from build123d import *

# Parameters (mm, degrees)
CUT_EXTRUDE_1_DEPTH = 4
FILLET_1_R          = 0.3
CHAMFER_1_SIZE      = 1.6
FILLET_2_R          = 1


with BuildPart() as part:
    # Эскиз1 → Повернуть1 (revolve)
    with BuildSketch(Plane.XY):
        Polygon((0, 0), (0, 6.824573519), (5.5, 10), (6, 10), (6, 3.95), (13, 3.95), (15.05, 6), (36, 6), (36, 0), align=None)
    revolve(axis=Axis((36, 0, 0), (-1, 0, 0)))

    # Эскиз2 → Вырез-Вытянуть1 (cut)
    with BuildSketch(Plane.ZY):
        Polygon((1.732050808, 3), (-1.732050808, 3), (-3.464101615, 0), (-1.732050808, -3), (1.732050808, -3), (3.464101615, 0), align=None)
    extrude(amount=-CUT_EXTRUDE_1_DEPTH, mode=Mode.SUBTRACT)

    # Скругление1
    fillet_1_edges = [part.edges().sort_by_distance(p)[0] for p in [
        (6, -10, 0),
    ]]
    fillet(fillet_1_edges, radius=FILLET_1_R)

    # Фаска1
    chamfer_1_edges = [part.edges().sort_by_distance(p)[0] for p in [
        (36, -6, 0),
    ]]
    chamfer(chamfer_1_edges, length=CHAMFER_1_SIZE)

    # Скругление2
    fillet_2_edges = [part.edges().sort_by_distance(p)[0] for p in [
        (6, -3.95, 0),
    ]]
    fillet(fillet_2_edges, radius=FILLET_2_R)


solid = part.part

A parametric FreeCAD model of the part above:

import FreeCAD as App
import Part
import Sketcher
Q = App.Units.Quantity


def edges_at(feature, points):
    """Names of the edges that pass closest to the given points."""
    edges = feature.Shape.Edges
    near = lambda p: min(range(len(edges)), key=lambda i: edges[i].distToShape(Part.Vertex(*p))[0])
    return sorted({f"Edge{near(p) + 1}" for p in points})

doc = App.newDocument("Part")
body = doc.addObject("PartDesign::Body", "Body")

# Sketch on XY plane
sketch1 = doc.addObject("Sketcher::SketchObject", "Sketch")
body.addObject(sketch1)
sketch1.AttachmentSupport = (doc.XY_Plane, [""])
sketch1.MapMode = "FlatFace"
sketch1.addGeometry(Part.LineSegment(App.Vector(0, 6.8, 0), App.Vector(0, 0, 0)), False)
sketch1.addGeometry(Part.LineSegment(App.Vector(0, 0, 0), App.Vector(36, 0, 0)), False)
sketch1.addGeometry(Part.LineSegment(App.Vector(36, 0, 0), App.Vector(36, 6, 0)), False)
sketch1.addGeometry(Part.LineSegment(App.Vector(36, 6, 0), App.Vector(15.1, 6, 0)), False)
sketch1.addGeometry(Part.LineSegment(App.Vector(15.1, 6, 0), App.Vector(13, 4, 0)), False)
sketch1.addGeometry(Part.LineSegment(App.Vector(13, 4, 0), App.Vector(6, 4, 0)), False)
sketch1.addGeometry(Part.LineSegment(App.Vector(6, 4, 0), App.Vector(6, 10, 0)), False)
sketch1.addGeometry(Part.LineSegment(App.Vector(6, 10, 0), App.Vector(5.5, 10, 0)), False)
sketch1.addGeometry(Part.LineSegment(App.Vector(5.5, 10, 0), App.Vector(0, 6.8, 0)), False)
sketch1.addConstraint(Sketcher.Constraint("Coincident", 0, 2, 1, 1))
sketch1.addConstraint(Sketcher.Constraint("Coincident", 1, 2, 2, 1))
sketch1.addConstraint(Sketcher.Constraint("Coincident", 2, 2, 3, 1))
sketch1.addConstraint(Sketcher.Constraint("Coincident", 3, 2, 4, 1))
sketch1.addConstraint(Sketcher.Constraint("Coincident", 4, 2, 5, 1))
sketch1.addConstraint(Sketcher.Constraint("Coincident", 5, 2, 6, 1))
sketch1.addConstraint(Sketcher.Constraint("Coincident", 6, 2, 7, 1))
sketch1.addConstraint(Sketcher.Constraint("Coincident", 7, 2, 8, 1))
sketch1.addConstraint(Sketcher.Constraint("Coincident", 8, 2, 0, 1))
sketch1.addConstraint(Sketcher.Constraint("Vertical", 0))
sketch1.addConstraint(Sketcher.Constraint("Horizontal", 1))
sketch1.addConstraint(Sketcher.Constraint("Vertical", 2))
sketch1.addConstraint(Sketcher.Constraint("Horizontal", 3))
sketch1.addConstraint(Sketcher.Constraint("Horizontal", 5))
sketch1.addConstraint(Sketcher.Constraint("Vertical", 6))
sketch1.addConstraint(Sketcher.Constraint("Horizontal", 7))
sketch1.addConstraint(Sketcher.Constraint("Coincident", 0, 2, -1, 1))
sketch1.addConstraint(Sketcher.Constraint("DistanceX", 1, 1, 1, 2, Q("36 mm")))
sketch1.addConstraint(Sketcher.Constraint("DistanceX", 5, 2, 5, 1, Q("7 mm")))
sketch1.addConstraint(Sketcher.Constraint("DistanceY", 2, 1, 2, 2, Q("6 mm")))
sketch1.addConstraint(Sketcher.Constraint("Angle", 4, Q("-135 deg")))
sketch1.addConstraint(Sketcher.Constraint("Angle", 8, Q("-150 deg")))
sketch1.addConstraint(Sketcher.Constraint("DistanceX", 7, 2, 7, 1, Q("0.5 mm")))
sketch1.addConstraint(Sketcher.Constraint("DistanceX", -1, 1, 4, 2, Q("13 mm")))
sketch1.addConstraint(Sketcher.Constraint("DistanceY", -1, 1, 6, 2, Q("10 mm")))
sketch1.addConstraint(Sketcher.Constraint("DistanceX", 3, 2, 3, 1, Q("20.95 mm")))
revolution = doc.addObject("PartDesign::Revolution", "Revolution")
body.addObject(revolution)
revolution.Profile = sketch1
revolution.ReferenceAxis = (sketch1, ["H_Axis"])
revolution.Angle = 360

# Sketch on YZ plane
sketch2 = doc.addObject("Sketcher::SketchObject", "Sketch001")
body.addObject(sketch2)
sketch2.AttachmentSupport = (doc.YZ_Plane, [""])
sketch2.MapMode = "FlatFace"
sketch2.addGeometry(Part.LineSegment(App.Vector(3, 1.7, 0), App.Vector(3, -1.7, 0)), False)
sketch2.addGeometry(Part.LineSegment(App.Vector(3, -1.7, 0), App.Vector(0, -3.5, 0)), False)
sketch2.addGeometry(Part.LineSegment(App.Vector(0, -3.5, 0), App.Vector(-3, -1.7, 0)), False)
sketch2.addGeometry(Part.LineSegment(App.Vector(-3, -1.7, 0), App.Vector(-3, 1.7, 0)), False)
sketch2.addGeometry(Part.LineSegment(App.Vector(-3, 1.7, 0), App.Vector(0, 3.5, 0)), False)
sketch2.addGeometry(Part.LineSegment(App.Vector(0, 3.5, 0), App.Vector(3, 1.7, 0)), False)
sketch2.addConstraint(Sketcher.Constraint("Coincident", 0, 2, 1, 1))
sketch2.addConstraint(Sketcher.Constraint("Coincident", 1, 2, 2, 1))
sketch2.addConstraint(Sketcher.Constraint("Coincident", 2, 2, 3, 1))
sketch2.addConstraint(Sketcher.Constraint("Coincident", 3, 2, 4, 1))
sketch2.addConstraint(Sketcher.Constraint("Coincident", 4, 2, 5, 1))
sketch2.addConstraint(Sketcher.Constraint("Coincident", 5, 2, 0, 1))
sketch2.addConstraint(Sketcher.Constraint("Vertical", 0))
sketch2.addConstraint(Sketcher.Constraint("Vertical", 3))
sketch2.addConstraint(Sketcher.Constraint("Symmetric", 0, 2, 3, 2, -1, 1))
sketch2.addConstraint(Sketcher.Constraint("Symmetric", 1, 2, 4, 2, -1, 1))
sketch2.addConstraint(Sketcher.Constraint("PointOnObject", 1, 2, -2))
sketch2.addConstraint(Sketcher.Constraint("Parallel", 2, 5))
sketch2.addConstraint(Sketcher.Constraint("Horizontal", 0, 2, 2, 2))
sketch2.addConstraint(Sketcher.Constraint("Angle", 1, Q("-150 deg")))
sketch2.addConstraint(Sketcher.Constraint("DistanceX", -1, 1, 0, 2, Q("3 mm")))
sketch2.addConstraint(Sketcher.Constraint("DistanceY", 0, 2, 0, 1, Q("3.464102 mm")))
pocket1 = doc.addObject("PartDesign::Pocket", "Pocket")
body.addObject(pocket1)
pocket1.Profile = sketch2
pocket1.Length = 4
pocket1.Reversed = True
doc.recompute()

fillet = doc.addObject("PartDesign::Fillet", "Fillet")
body.addObject(fillet)
fillet.Base = (pocket1, edges_at(pocket1, [(6, -10, 0)]))
fillet.Radius = 0.3
doc.recompute()

chamfer = doc.addObject("PartDesign::Chamfer", "Chamfer")
body.addObject(chamfer)
chamfer.Base = (fillet, edges_at(fillet, [(36, -6, 0)]))
chamfer.Size = 1.6
doc.recompute()

fillet2 = doc.addObject("PartDesign::Fillet", "Fillet001")
body.addObject(fillet2)
fillet2.Base = (chamfer, edges_at(chamfer, [(6, -3.95, 0)]))
fillet2.Radius = 1

doc.recompute()
